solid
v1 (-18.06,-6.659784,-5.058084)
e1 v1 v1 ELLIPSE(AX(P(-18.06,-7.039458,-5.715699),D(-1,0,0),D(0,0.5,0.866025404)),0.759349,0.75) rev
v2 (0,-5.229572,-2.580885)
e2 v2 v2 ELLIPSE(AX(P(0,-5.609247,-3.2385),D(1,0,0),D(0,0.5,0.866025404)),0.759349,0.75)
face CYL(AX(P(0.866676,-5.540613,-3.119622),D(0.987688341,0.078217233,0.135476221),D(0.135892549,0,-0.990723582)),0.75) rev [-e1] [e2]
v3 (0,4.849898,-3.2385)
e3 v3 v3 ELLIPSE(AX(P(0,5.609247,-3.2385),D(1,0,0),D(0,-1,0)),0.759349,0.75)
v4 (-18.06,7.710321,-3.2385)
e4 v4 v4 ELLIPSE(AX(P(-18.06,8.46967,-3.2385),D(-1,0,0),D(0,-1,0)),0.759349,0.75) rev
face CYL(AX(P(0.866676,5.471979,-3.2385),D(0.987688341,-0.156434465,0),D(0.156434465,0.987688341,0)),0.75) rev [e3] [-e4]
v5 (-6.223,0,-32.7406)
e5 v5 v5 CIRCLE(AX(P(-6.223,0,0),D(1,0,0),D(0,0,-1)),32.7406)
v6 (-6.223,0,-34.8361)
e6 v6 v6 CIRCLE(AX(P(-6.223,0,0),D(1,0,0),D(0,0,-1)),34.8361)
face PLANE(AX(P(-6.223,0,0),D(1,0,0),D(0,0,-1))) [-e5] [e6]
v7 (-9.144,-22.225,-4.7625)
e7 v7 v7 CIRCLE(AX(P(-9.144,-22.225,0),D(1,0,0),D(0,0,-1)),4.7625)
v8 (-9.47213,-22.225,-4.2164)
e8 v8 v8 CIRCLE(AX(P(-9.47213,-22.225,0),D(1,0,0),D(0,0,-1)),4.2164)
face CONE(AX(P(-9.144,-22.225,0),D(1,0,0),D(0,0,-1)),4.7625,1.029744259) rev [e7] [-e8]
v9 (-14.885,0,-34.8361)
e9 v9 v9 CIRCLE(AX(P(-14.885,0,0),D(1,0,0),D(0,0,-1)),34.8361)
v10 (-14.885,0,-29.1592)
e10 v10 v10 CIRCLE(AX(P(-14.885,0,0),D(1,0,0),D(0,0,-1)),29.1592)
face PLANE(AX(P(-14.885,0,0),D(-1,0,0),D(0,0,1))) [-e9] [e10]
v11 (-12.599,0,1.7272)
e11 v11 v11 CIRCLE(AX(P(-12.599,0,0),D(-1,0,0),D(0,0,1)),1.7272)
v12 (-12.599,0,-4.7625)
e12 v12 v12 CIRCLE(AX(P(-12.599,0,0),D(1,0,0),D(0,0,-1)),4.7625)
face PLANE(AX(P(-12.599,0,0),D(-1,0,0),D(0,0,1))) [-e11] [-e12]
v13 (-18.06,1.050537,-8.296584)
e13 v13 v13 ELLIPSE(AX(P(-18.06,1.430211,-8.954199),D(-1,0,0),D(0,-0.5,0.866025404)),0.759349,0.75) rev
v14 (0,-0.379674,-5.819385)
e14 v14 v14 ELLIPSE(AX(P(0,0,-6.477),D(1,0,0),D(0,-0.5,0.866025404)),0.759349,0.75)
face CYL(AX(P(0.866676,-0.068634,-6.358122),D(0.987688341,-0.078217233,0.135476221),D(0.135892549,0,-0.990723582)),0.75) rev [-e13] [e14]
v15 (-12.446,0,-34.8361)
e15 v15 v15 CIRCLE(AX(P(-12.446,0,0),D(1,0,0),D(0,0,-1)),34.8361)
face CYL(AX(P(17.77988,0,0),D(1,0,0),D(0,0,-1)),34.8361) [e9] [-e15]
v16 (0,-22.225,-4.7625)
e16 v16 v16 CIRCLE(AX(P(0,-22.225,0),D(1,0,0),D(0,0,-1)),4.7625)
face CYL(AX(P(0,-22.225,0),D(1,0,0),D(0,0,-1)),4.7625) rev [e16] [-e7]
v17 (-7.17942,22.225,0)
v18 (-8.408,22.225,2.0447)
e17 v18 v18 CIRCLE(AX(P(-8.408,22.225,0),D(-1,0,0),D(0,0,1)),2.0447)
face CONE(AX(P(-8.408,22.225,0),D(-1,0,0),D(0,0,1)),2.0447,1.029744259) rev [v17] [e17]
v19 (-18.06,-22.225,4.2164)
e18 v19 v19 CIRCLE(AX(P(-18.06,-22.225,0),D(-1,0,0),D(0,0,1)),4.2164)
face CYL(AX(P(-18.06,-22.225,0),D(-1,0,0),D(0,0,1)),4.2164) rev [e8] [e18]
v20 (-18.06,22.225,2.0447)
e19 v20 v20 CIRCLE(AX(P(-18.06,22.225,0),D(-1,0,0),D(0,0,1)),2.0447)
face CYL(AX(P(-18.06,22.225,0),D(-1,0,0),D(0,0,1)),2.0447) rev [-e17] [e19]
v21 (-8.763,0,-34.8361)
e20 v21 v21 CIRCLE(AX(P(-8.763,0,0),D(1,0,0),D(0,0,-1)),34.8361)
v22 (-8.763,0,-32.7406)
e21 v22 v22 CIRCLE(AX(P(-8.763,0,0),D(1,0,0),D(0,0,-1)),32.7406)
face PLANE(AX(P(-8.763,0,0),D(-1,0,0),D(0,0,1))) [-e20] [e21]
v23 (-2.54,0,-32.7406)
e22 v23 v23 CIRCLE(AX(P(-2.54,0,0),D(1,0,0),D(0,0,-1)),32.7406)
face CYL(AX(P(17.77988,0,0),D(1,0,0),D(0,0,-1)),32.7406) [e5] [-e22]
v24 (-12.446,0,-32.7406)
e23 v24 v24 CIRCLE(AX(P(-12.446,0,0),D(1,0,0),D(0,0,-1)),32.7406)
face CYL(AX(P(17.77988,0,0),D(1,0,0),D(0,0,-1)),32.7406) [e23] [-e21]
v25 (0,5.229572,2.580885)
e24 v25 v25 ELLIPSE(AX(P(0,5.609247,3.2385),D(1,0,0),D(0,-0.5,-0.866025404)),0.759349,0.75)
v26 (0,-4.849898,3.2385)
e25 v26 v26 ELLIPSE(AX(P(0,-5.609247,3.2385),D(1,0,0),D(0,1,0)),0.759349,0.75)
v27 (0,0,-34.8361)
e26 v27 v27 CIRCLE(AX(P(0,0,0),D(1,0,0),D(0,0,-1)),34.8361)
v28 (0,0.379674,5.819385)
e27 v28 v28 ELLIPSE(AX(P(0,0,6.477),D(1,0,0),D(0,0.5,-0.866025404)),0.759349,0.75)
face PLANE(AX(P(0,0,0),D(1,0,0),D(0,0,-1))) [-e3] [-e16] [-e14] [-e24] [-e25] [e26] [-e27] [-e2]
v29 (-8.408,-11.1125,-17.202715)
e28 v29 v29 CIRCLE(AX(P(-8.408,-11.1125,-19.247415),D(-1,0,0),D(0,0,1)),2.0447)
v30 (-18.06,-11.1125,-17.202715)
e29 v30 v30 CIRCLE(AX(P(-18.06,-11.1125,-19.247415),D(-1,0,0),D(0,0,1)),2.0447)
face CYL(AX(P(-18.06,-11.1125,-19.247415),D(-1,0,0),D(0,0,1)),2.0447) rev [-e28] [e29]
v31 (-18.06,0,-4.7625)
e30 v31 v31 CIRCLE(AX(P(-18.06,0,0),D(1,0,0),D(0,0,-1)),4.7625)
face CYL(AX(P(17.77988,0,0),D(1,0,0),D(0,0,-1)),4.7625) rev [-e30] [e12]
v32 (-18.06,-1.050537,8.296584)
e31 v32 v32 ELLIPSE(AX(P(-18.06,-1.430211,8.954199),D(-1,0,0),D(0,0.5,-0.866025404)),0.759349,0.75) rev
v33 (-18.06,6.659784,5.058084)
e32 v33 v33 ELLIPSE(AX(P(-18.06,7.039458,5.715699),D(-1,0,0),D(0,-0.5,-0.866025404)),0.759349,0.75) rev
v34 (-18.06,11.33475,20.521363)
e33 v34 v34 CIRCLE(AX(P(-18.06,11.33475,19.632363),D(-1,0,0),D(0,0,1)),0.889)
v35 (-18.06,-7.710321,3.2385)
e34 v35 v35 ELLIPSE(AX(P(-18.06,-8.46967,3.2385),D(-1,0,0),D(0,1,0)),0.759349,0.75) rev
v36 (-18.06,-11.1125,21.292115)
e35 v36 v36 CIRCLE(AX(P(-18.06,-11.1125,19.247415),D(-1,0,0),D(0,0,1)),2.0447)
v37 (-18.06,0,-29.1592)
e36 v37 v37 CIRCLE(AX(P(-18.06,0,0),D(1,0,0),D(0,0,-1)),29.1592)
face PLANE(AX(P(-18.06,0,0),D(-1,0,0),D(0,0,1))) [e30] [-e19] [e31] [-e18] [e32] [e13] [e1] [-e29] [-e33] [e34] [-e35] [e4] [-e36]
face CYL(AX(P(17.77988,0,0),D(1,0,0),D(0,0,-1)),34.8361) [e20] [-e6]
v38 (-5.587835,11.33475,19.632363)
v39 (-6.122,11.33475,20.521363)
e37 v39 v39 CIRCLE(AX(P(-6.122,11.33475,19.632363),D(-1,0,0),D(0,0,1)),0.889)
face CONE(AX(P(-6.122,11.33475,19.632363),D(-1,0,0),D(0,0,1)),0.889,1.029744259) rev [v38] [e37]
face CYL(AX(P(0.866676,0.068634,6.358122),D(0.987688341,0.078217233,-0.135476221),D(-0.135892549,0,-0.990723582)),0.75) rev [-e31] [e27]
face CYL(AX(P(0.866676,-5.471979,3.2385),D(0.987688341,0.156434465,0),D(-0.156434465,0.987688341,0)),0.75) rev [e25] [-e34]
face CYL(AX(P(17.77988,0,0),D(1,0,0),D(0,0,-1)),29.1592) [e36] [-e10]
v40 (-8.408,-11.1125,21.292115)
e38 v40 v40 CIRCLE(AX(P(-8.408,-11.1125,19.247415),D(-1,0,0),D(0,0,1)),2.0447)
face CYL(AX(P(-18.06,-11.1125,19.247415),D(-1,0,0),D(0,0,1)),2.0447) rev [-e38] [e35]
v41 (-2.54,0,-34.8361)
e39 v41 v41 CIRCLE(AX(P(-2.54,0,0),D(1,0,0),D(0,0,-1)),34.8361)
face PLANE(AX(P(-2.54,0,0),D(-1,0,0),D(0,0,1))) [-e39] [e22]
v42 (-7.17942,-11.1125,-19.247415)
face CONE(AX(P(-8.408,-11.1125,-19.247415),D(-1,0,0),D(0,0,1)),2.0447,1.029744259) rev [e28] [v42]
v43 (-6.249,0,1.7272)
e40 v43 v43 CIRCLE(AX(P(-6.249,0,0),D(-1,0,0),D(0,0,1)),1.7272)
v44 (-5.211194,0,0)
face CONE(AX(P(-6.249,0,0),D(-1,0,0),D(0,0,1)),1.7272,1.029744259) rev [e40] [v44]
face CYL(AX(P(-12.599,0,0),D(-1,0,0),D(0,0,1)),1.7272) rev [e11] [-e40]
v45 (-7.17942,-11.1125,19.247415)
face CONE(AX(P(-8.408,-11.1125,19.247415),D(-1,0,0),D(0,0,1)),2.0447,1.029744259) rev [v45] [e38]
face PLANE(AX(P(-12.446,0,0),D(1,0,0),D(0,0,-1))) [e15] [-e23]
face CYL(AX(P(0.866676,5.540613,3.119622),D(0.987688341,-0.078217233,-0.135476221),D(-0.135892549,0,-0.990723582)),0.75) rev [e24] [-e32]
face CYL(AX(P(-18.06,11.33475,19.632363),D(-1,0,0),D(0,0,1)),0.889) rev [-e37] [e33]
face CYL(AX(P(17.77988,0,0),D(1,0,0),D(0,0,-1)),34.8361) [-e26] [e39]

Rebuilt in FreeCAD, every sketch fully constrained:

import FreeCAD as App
import Part
import Sketcher
from FreeCAD import Vector
Q = App.Units.Quantity

doc = App.newDocument("Part")
body = doc.addObject("PartDesign::Body", "Body")

sketch1 = doc.addObject("Sketcher::SketchObject", "Sketch")
body.addObject(sketch1)
sketch1.AttachmentSupport = (doc.XY_Plane, [""])
sketch1.MapMode = "FlatFace"
sketch1.addGeometry([
    Part.LineSegment(Vector(-12.6, 0, 0), Vector(0, 0, 0)),
    Part.LineSegment(Vector(0, 0, 0), Vector(0, 34.8, 0)),
    Part.LineSegment(Vector(0, 34.8, 0), Vector(-2.5, 34.8, 0)),
    Part.LineSegment(Vector(-2.5, 34.8, 0), Vector(-2.5, 32.7, 0)),
    Part.LineSegment(Vector(-2.5, 32.7, 0), Vector(-6.2, 32.7, 0)),
    Part.LineSegment(Vector(-6.2, 32.7, 0), Vector(-6.2, 34.8, 0)),
    Part.LineSegment(Vector(-6.2, 34.8, 0), Vector(-8.8, 34.8, 0)),
    Part.LineSegment(Vector(-8.8, 34.8, 0), Vector(-8.8, 32.7, 0)),
    Part.LineSegment(Vector(-8.8, 32.7, 0), Vector(-12.4, 32.7, 0)),
    Part.LineSegment(Vector(-12.4, 32.7, 0), Vector(-12.4, 34.8, 0)),
    Part.LineSegment(Vector(-12.4, 34.8, 0), Vector(-14.9, 34.8, 0)),
    Part.LineSegment(Vector(-14.9, 34.8, 0), Vector(-14.9, 29.2, 0)),
    Part.LineSegment(Vector(-14.9, 29.2, 0), Vector(-18.1, 29.2, 0)),
    Part.LineSegment(Vector(-18.1, 29.2, 0), Vector(-18.1, 4.8, 0)),
    Part.LineSegment(Vector(-18.1, 4.8, 0), Vector(-12.6, 4.8, 0)),
    Part.LineSegment(Vector(-12.6, 4.8, 0), Vector(-12.6, 0, 0)),
], False)
sketch1.addConstraint([
    Sketcher.Constraint("Coincident", 0, 2, 1, 1),
    Sketcher.Constraint("Coincident", 1, 2, 2, 1),
    Sketcher.Constraint("Coincident", 2, 2, 3, 1),
    Sketcher.Constraint("Coincident", 3, 2, 4, 1),
    Sketcher.Constraint("Coincident", 4, 2, 5, 1),
    Sketcher.Constraint("Coincident", 5, 2, 6, 1),
    Sketcher.Constraint("Coincident", 6, 2, 7, 1),
    Sketcher.Constraint("Coincident", 7, 2, 8, 1),
    Sketcher.Constraint("Coincident", 8, 2, 9, 1),
    Sketcher.Constraint("Coincident", 9, 2, 10, 1),
    Sketcher.Constraint("Coincident", 10, 2, 11, 1),
    Sketcher.Constraint("Coincident", 11, 2, 12, 1),
    Sketcher.Constraint("Coincident", 12, 2, 13, 1),
    Sketcher.Constraint("Coincident", 13, 2, 14, 1),
    Sketcher.Constraint("Coincident", 14, 2, 15, 1),
    Sketcher.Constraint("Coincident", 15, 2, 0, 1),
    Sketcher.Constraint("Horizontal", 0),
    Sketcher.Constraint("Vertical", 1),
    Sketcher.Constraint("Horizontal", 2),
    Sketcher.Constraint("Vertical", 3),
    Sketcher.Constraint("Horizontal", 4),
    Sketcher.Constraint("Vertical", 5),
    Sketcher.Constraint("Horizontal", 6),
    Sketcher.Constraint("Vertical", 7),
    Sketcher.Constraint("Horizontal", 8),
    Sketcher.Constraint("Vertical", 9),
    Sketcher.Constraint("Horizontal", 10),
    Sketcher.Constraint("Vertical", 11),
    Sketcher.Constraint("Horizontal", 12),
    Sketcher.Constraint("Vertical", 13),
    Sketcher.Constraint("Horizontal", 14),
    Sketcher.Constraint("Vertical", 15),
    Sketcher.Constraint("Coincident", 0, 2, -1, 1),
    Sketcher.Constraint("Horizontal", 2, 2, 5, 2),
    Sketcher.Constraint("Horizontal", 4, 2, 7, 2),
    Sketcher.Constraint("Horizontal", 6, 2, 9, 2),
    Sketcher.Constraint("Equal", 2, 6),
    Sketcher.Constraint("Equal", 4, 8),
    Sketcher.Constraint("DistanceX", 2, 2, 2, 1, Q("0.1 in")),
    Sketcher.Constraint("DistanceX", 4, 2, 4, 1, Q("0.145 in")),
    Sketcher.Constraint("DistanceX", 12, 2, 12, 1, Q("0.125 in")),
    Sketcher.Constraint("DistanceX", 14, 1, 14, 2, Q("0.215 in")),
    Sketcher.Constraint("DistanceY", 15, 2, 15, 1, Q("0.1875 in")),
    Sketcher.Constraint("DistanceY", 1, 1, 1, 2, Q("1.3715 in")),
    Sketcher.Constraint("DistanceY", 3, 2, 3, 1, Q("0.0825 in")),
    Sketcher.Constraint("DistanceY", 11, 2, 11, 1, Q("0.2235 in")),
    Sketcher.Constraint("DistanceX", 0, 1, 0, 2, Q("12.599 mm")),
])
revolution = doc.addObject("PartDesign::Revolution", "Revolution")
body.addObject(revolution)
revolution.Profile = sketch1
revolution.ReferenceAxis = (sketch1, ["H_Axis"])
revolution.Angle = 360

sketch2 = doc.addObject("Sketcher::SketchObject", "Sketch001")
body.addObject(sketch2)
sketch2.AttachmentSupport = (doc.XZ_Plane, [""])
sketch2.MapMode = "FlatFace"
sketch2.AttachmentOffset = App.Placement(Vector(0, 0, -0.875 * 25.4), App.Rotation())
sketch2.addGeometry([
    Part.LineSegment(Vector(-7.2, 0, 0), Vector(-18.1, 0, 0)),
    Part.LineSegment(Vector(-18.1, 0, 0), Vector(-18.1, 2, 0)),
    Part.LineSegment(Vector(-18.1, 2, 0), Vector(-8.4, 2, 0)),
    Part.LineSegment(Vector(-8.4, 2, 0), Vector(-7.2, 0, 0)),
], False)
sketch2.addConstraint([
    Sketcher.Constraint("Coincident", 0, 2, 1, 1),
    Sketcher.Constraint("Coincident", 1, 2, 2, 1),
    Sketcher.Constraint("Coincident", 2, 2, 3, 1),
    Sketcher.Constraint("Coincident", 3, 2, 0, 1),
    Sketcher.Constraint("Horizontal", 0),
    Sketcher.Constraint("Vertical", 1),
    Sketcher.Constraint("Horizontal", 2),
    Sketcher.Constraint("PointOnObject", 0, 2, -1),
    Sketcher.Constraint("Angle", 3, Q("-59 deg")),
    Sketcher.Constraint("DistanceX", 2, 1, 2, 2, Q("0.38 in")),
    Sketcher.Constraint("DistanceY", 1, 1, 1, 2, Q("0.0805 in")),
    Sketcher.Constraint("DistanceX", 0, 2, -1, 1, Q("18.06 mm")),
])
groove = doc.addObject("PartDesign::Groove", "Groove")
body.addObject(groove)
groove.Profile = sketch2
groove.ReferenceAxis = (sketch2, ["H_Axis"])
groove.Angle = 360
doc.recompute()

polarpattern = doc.addObject("PartDesign::PolarPattern", "PolarPattern")
body.addObject(polarpattern)
polarpattern.Originals = [groove]
polarpattern.Axis = (doc.X_Axis, [""])
polarpattern.Angle = 360
polarpattern.Occurrences = 3
body.Tip = polarpattern

sketch3 = doc.addObject("Sketcher::SketchObject", "Sketch002")
body.addObject(sketch3)
sketch3.Placement = App.Placement(Vector(0.866676, -0.068634, -6.358122), App.Rotation(Vector(0.150977291, 0.703363963, -0.694611397), Vector(-0.98768834, 0.078217233, -0.135476221), Vector(-0.04095851, 0.706513411, 0.706513411), "ZXY"))
sketch3.addGeometry([
    Part.LineSegment(Vector(0, 24.5, 0), Vector(0, 0, 0)),
    Part.LineSegment(Vector(0, 0, 0), Vector(0.8, 0, 0)),
    Part.LineSegment(Vector(0.8, 0, 0), Vector(0.8, 24.1, 0)),
    Part.LineSegment(Vector(0.8, 24.1, 0), Vector(0, 24.5, 0)),
], False)
sketch3.addConstraint([
    Sketcher.Constraint("Coincident", 0, 2, 1, 1),
    Sketcher.Constraint("Coincident", 1, 2, 2, 1),
    Sketcher.Constraint("Coincident", 2, 2, 3, 1),
    Sketcher.Constraint("Coincident", 3, 2, 0, 1),
    Sketcher.Constraint("Vertical", 0),
    Sketcher.Constraint("Horizontal", 1),
    Sketcher.Constraint("Vertical", 2),
    Sketcher.Constraint("Coincident", 0, 2, -1, 1),
    Sketcher.Constraint("Angle", 3, Q("149 deg")),
    Sketcher.Constraint("DistanceX", 1, 1, 1, 2, Q("0.75 mm")),
    Sketcher.Constraint("DistanceY", 0, 2, 0, 1, Q("24.519628 mm")),
])
groove2 = doc.addObject("PartDesign::Groove", "Groove001")
body.addObject(groove2)
groove2.Profile = sketch3
groove2.ReferenceAxis = (sketch3, ["V_Axis"])
groove2.Angle = 360
doc.recompute()

polarpattern2 = doc.addObject("PartDesign::PolarPattern", "PolarPattern001")
body.addObject(polarpattern2)
polarpattern2.Originals = [groove2]
polarpattern2.Axis = (doc.X_Axis, [""])
polarpattern2.Angle = 360
polarpattern2.Occurrences = 6
body.Tip = polarpattern2

sketch4 = doc.addObject("Sketcher::SketchObject", "Sketch003")
body.addObject(sketch4)
sketch4.AttachmentSupport = (doc.YZ_Plane, [""])
sketch4.MapMode = "FlatFace"
sketch4.AttachmentOffset = App.Placement(Vector(0, 0, -12.599), App.Rotation())
sketch4.addGeometry(Part.Circle(Vector(0, 0, 0), Vector(0, 0, 1), 1.7), False)
sketch4.addConstraint([
    Sketcher.Constraint("Coincident", 0, 3, -1, 1),
    Sketcher.Constraint("Diameter", 0, Q("0.136 in")),
])
doc.recompute()
hole = doc.addObject("PartDesign::Hole", "Hole")
body.addObject(hole)
hole.Profile = sketch4
hole.ThreadType = "None"
hole.Diameter = Q("0.136 in")
hole.DepthType = "Dimension"
hole.Depth = Q("0.25 in")
hole.DrillPoint = "Angled"
hole.DrillPointAngle = 118
hole.Reversed = True

sketch5 = doc.addObject("Sketcher::SketchObject", "Sketch004")
body.addObject(sketch5)
sketch5.AttachmentSupport = (doc.YZ_Plane, [""])
sketch5.MapMode = "FlatFace"
sketch5.AttachmentOffset = App.Placement(Vector(0, 0, -18.06), App.Rotation())
sketch5.addGeometry(Part.Circle(Vector(11.3, 19.6, 0), Vector(0, 0, 1), 0.9), False)
sketch5.addConstraint([
    Sketcher.Constraint("Diameter", 0, Q("0.07 in")),
    Sketcher.Constraint("DistanceX", -1, 1, 0, 3, Q("11.33475 mm")),
    Sketcher.Constraint("DistanceY", -1, 1, 0, 3, Q("19.632363 mm")),
])
doc.recompute()
hole2 = doc.addObject("PartDesign::Hole", "Hole001")
body.addObject(hole2)
hole2.Profile = sketch5
hole2.ThreadType = "None"
hole2.Diameter = Q("0.07 in")
hole2.DepthType = "Dimension"
hole2.Depth = Q("0.47 in")
hole2.DrillPoint = "Angled"
hole2.DrillPointAngle = 118
hole2.Reversed = True

sketch6 = doc.addObject("Sketcher::SketchObject", "Sketch005")
body.addObject(sketch6)
sketch6.AttachmentSupport = (doc.YZ_Plane, [""])
sketch6.MapMode = "FlatFace"
sketch6.AttachmentOffset = App.Placement(Vector(0, 0, -18.06), App.Rotation())
sketch6.addGeometry(Part.Circle(Vector(-22.2, 0, 0), Vector(0, 0, 1), 4.2), False)
sketch6.addConstraint([
    Sketcher.Constraint("PointOnObject", 0, 3, -1),
    Sketcher.Constraint("Diameter", 0, Q("0.332 in")),
    Sketcher.Constraint("DistanceX", 0, 3, -1, 1, Q("0.875 in")),
])
doc.recompute()
hole3 = doc.addObject("PartDesign::Hole", "Hole002")
body.addObject(hole3)
hole3.Profile = sketch6
hole3.ThreadType = "None"
hole3.Diameter = Q("0.332 in")
hole3.DepthType = "ThroughAll"
hole3.Reversed = True

sketch7 = doc.addObject("Sketcher::SketchObject", "Sketch006")
body.addObject(sketch7)
sketch7.AttachmentSupport = (doc.YZ_Plane, [""])
sketch7.MapMode = "FlatFace"
sketch7.addGeometry(Part.Circle(Vector(-22.2, 0, 0), Vector(0, 0, 1), 4.8), False)
sketch7.addConstraint([
    Sketcher.Constraint("PointOnObject", 0, 3, -1),
    Sketcher.Constraint("Diameter", 0, Q("0.375 in")),
    Sketcher.Constraint("DistanceX", 0, 3, -1, 1, Q("0.875 in")),
])
doc.recompute()
hole4 = doc.addObject("PartDesign::Hole", "Hole003")
body.addObject(hole4)
hole4.Profile = sketch7
hole4.ThreadType = "None"
hole4.Diameter = Q("0.375 in")
hole4.DepthType = "Dimension"
hole4.Depth = Q("0.36 in")
hole4.DrillPoint = "Angled"
hole4.DrillPointAngle = 118

doc.recompute()
